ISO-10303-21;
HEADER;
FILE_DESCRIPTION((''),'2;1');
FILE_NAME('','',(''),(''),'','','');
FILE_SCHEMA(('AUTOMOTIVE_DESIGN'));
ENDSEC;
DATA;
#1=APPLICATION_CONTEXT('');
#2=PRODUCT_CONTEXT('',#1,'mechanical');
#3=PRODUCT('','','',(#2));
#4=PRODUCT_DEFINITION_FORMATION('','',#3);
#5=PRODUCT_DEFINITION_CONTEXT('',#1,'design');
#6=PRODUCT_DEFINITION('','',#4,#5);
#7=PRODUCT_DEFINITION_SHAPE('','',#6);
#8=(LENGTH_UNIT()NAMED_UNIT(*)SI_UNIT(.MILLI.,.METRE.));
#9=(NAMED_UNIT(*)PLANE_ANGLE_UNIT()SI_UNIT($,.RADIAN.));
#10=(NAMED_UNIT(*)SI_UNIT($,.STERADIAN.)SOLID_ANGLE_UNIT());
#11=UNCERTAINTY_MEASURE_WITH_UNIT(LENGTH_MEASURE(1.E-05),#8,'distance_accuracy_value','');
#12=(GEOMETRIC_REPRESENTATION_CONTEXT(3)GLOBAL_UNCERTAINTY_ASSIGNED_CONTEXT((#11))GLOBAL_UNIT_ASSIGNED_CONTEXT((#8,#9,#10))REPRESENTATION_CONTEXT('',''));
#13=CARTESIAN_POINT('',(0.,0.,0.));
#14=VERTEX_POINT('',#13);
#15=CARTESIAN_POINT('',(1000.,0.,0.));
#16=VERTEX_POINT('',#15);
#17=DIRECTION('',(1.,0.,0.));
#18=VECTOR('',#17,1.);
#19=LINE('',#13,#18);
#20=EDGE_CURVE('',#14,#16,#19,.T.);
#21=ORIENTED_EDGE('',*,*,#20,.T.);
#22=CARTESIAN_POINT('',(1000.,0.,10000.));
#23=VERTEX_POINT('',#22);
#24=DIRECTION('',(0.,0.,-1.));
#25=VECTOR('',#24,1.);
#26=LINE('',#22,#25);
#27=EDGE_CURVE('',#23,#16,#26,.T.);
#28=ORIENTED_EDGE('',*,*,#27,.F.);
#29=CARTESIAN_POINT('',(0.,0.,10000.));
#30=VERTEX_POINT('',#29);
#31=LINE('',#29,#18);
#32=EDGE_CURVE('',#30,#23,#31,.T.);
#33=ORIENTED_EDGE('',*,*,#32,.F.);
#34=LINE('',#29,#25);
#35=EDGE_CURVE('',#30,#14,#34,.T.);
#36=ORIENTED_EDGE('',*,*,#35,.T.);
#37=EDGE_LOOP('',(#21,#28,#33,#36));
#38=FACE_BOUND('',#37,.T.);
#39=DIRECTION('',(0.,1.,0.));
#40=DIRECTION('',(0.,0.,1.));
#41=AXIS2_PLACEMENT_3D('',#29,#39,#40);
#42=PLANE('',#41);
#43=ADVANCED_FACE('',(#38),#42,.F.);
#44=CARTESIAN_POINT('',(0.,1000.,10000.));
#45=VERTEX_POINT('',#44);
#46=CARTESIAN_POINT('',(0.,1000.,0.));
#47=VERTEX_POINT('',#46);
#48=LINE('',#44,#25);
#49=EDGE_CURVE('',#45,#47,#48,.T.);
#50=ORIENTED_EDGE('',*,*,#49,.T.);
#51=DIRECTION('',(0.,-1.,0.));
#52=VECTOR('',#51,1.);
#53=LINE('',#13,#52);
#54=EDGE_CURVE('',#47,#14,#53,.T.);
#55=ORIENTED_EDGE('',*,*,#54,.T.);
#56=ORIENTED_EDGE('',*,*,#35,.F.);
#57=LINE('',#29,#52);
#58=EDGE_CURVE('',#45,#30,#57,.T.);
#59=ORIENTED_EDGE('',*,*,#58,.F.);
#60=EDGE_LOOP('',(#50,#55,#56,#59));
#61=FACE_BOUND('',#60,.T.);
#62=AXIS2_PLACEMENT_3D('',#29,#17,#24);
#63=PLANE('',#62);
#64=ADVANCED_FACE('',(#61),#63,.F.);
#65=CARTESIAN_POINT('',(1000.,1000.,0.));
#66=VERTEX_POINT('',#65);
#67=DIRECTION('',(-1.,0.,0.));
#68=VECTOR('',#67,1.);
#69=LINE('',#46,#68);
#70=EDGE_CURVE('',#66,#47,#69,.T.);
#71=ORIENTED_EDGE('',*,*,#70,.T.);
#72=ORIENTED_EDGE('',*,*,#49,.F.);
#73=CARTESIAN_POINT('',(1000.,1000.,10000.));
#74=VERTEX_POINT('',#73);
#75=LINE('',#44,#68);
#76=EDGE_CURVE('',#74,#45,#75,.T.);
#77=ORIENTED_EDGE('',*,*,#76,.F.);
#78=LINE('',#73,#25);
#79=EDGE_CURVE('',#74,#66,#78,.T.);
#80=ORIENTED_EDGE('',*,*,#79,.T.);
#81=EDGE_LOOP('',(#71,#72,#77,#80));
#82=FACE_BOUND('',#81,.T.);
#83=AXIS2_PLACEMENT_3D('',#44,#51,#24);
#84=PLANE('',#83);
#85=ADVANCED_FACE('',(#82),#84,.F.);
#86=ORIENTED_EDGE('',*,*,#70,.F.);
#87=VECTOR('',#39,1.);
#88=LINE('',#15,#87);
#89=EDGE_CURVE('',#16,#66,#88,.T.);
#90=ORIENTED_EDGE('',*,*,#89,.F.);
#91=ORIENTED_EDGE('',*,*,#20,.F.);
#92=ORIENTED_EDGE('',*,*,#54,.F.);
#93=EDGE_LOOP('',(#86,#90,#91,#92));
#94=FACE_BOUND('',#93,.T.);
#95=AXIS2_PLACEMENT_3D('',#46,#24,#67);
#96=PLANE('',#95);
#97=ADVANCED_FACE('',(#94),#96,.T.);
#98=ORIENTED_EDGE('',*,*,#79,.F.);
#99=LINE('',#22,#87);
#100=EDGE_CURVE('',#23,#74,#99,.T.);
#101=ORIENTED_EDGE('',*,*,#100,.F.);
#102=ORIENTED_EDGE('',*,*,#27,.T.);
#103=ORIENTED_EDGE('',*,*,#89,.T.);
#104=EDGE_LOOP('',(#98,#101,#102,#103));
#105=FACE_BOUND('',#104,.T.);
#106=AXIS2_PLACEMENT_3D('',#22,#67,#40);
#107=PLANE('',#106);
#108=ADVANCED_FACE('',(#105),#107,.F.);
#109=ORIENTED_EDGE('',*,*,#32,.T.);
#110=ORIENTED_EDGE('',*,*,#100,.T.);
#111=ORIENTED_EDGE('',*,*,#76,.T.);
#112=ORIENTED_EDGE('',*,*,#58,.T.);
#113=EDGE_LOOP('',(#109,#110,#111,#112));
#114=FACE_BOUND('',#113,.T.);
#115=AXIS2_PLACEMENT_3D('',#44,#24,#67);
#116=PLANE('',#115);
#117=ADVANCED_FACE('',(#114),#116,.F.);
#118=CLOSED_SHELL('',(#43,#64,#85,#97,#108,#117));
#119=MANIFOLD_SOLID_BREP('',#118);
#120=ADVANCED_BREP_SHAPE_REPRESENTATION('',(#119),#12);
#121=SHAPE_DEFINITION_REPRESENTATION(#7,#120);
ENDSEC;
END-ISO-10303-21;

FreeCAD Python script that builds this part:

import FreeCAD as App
import Part
import Sketcher
from FreeCAD import Vector

doc = App.newDocument("Part")
body = doc.addObject("PartDesign::Body", "Body")

# Sketch on XY plane
sketch1 = doc.addObject("Sketcher::SketchObject", "Sketch")
body.addObject(sketch1)
sketch1.AttachmentSupport = (doc.XY_Plane, [""])
sketch1.MapMode = "FlatFace"
sketch1.addGeometry(Part.LineSegment(Vector(0, 1000, 0), Vector(0, 0, 0)), False)
sketch1.addGeometry(Part.LineSegment(Vector(0, 0, 0), Vector(1000, 0, 0)), False)
sketch1.addGeometry(Part.LineSegment(Vector(1000, 0, 0), Vector(1000, 1000, 0)), False)
sketch1.addGeometry(Part.LineSegment(Vector(1000, 1000, 0), Vector(0, 1000, 0)), False)
sketch1.addConstraint(Sketcher.Constraint("Coincident", 0, 2, 1, 1))
sketch1.addConstraint(Sketcher.Constraint("Coincident", 1, 2, 2, 1))
sketch1.addConstraint(Sketcher.Constraint("Coincident", 2, 2, 3, 1))
sketch1.addConstraint(Sketcher.Constraint("Coincident", 3, 2, 0, 1))
sketch1.addConstraint(Sketcher.Constraint("Vertical", 0))
sketch1.addConstraint(Sketcher.Constraint("Horizontal", 1))
sketch1.addConstraint(Sketcher.Constraint("Vertical", 2))
sketch1.addConstraint(Sketcher.Constraint("Horizontal", 3))
sketch1.addConstraint(Sketcher.Constraint("Coincident", 0, 2, -1, 1))
sketch1.addConstraint(Sketcher.Constraint("Equal", 3, 0))
sketch1.addConstraint(Sketcher.Constraint("DistanceX", 1, 1, 1, 2, 1000.0))
pad1 = doc.addObject("PartDesign::Pad", "Pad")
body.addObject(pad1)
pad1.Profile = sketch1
pad1.Length = 10000

doc.recompute()
